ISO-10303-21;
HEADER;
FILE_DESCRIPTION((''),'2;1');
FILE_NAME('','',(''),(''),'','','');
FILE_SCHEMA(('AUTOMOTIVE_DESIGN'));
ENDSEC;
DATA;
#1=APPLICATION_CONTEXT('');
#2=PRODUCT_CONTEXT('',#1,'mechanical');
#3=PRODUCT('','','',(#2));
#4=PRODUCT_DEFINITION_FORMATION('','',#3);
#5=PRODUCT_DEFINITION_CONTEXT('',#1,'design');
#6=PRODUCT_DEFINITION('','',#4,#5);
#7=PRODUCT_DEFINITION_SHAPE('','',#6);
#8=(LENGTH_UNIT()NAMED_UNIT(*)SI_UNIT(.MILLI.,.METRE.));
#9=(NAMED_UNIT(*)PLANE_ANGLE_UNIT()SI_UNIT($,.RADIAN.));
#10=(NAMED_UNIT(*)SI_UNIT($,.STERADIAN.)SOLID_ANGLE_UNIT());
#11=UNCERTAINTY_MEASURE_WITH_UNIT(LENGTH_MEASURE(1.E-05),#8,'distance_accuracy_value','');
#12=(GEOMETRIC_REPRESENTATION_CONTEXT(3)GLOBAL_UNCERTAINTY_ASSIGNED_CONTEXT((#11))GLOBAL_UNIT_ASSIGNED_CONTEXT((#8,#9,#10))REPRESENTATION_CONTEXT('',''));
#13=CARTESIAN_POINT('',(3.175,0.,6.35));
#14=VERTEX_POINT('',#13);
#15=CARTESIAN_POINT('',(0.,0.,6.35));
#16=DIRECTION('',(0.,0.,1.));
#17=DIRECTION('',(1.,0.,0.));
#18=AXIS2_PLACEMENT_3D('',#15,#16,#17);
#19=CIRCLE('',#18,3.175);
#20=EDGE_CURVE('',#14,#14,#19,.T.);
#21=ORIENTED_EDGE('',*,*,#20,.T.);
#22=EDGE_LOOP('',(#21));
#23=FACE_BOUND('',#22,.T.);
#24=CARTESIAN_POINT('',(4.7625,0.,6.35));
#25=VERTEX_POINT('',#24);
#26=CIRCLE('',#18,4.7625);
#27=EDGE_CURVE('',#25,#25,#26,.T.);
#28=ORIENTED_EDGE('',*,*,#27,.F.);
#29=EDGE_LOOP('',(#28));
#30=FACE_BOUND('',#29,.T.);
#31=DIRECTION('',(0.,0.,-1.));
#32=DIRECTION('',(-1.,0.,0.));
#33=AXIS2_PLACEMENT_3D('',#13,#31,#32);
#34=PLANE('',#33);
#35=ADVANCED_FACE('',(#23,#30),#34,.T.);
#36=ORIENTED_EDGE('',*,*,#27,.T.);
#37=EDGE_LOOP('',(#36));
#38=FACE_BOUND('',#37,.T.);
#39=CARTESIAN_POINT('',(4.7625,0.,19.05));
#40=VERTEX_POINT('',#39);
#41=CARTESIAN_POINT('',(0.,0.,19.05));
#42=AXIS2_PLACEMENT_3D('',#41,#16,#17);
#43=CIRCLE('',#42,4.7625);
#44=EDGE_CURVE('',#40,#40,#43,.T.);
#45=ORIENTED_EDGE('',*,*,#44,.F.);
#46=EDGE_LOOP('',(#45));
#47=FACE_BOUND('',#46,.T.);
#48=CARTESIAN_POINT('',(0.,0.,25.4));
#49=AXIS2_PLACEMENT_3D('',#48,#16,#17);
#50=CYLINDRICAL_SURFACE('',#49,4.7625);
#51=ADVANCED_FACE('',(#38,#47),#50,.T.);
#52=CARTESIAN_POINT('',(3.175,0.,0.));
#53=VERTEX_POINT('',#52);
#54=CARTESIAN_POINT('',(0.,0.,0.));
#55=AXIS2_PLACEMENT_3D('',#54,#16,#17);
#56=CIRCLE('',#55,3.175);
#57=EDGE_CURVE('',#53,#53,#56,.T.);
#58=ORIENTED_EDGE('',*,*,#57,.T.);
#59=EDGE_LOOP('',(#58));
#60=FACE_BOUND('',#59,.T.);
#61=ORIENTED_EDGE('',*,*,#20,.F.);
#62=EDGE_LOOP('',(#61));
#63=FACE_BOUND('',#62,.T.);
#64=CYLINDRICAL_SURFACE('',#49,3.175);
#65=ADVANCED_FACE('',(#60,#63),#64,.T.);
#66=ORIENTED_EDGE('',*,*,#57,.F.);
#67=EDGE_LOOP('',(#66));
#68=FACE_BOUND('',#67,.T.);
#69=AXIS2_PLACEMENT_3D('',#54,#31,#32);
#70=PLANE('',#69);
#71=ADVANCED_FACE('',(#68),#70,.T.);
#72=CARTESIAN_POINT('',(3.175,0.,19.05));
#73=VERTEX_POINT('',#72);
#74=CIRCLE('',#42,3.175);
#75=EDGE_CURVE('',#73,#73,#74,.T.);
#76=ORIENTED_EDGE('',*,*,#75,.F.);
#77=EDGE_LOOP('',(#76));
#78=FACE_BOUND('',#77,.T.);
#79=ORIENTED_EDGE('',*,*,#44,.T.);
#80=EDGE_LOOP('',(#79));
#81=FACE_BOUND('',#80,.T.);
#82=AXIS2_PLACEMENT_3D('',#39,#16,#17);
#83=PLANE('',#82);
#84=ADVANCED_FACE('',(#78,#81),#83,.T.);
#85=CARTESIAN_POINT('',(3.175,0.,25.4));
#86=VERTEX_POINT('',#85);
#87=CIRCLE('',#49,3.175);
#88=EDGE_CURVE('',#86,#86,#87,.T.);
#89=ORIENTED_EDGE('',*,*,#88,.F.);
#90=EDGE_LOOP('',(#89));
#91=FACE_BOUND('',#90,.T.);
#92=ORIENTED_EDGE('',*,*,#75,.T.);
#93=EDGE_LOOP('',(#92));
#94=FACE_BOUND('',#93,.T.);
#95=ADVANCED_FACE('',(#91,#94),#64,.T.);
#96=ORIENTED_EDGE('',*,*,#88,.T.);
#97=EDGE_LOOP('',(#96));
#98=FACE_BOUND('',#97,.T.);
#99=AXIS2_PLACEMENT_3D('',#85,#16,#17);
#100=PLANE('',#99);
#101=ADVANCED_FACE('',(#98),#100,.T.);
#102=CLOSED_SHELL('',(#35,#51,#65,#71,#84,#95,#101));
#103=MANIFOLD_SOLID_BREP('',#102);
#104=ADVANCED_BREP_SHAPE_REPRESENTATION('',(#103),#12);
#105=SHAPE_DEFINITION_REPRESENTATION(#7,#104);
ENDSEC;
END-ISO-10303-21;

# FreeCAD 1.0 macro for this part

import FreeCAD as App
import Part
import Sketcher

V = App.Vector
Q = App.Units.Quantity

doc = App.newDocument("Part")
body = doc.addObject("PartDesign::Body", "Body")

# Sketch on XZ plane
sketch1 = body.newObject("Sketcher::SketchObject", "Sketch")
sketch1.AttachmentSupport = (doc.getObject("XZ_Plane"), [""])
sketch1.MapMode = "FlatFace"
sketch1.addGeometry([
    Part.LineSegment(V(3.2, 0, 0), V(0, 0, 0)),  # 0
    Part.LineSegment(V(0, 0, 0), V(0, 25.4, 0)),  # 1
    Part.LineSegment(V(0, 25.4, 0), V(3.2, 25.4, 0)),  # 2
    Part.LineSegment(V(3.2, 25.4, 0), V(3.2, 19.1, 0)),  # 3
    Part.LineSegment(V(3.2, 19.1, 0), V(4.8, 19.1, 0)),  # 4
    Part.LineSegment(V(4.8, 19.1, 0), V(4.8, 6.3, 0)),  # 5
    Part.LineSegment(V(4.8, 6.3, 0), V(3.2, 6.3, 0)),  # 6
    Part.LineSegment(V(3.2, 6.3, 0), V(3.2, 0, 0)),  # 7
], False)
sketch1.addConstraint([
    Sketcher.Constraint("Coincident", 0, 2, 1, 1),
    Sketcher.Constraint("Coincident", 1, 2, 2, 1),
    Sketcher.Constraint("Coincident", 2, 2, 3, 1),
    Sketcher.Constraint("Coincident", 3, 2, 4, 1),
    Sketcher.Constraint("Coincident", 4, 2, 5, 1),
    Sketcher.Constraint("Coincident", 5, 2, 6, 1),
    Sketcher.Constraint("Coincident", 6, 2, 7, 1),
    Sketcher.Constraint("Coincident", 7, 2, 0, 1),
    Sketcher.Constraint("Horizontal", 0),
    Sketcher.Constraint("Vertical", 1),
    Sketcher.Constraint("Horizontal", 2),
    Sketcher.Constraint("Vertical", 3),
    Sketcher.Constraint("Horizontal", 4),
    Sketcher.Constraint("Vertical", 5),
    Sketcher.Constraint("Horizontal", 6),
    Sketcher.Constraint("Vertical", 7),
    Sketcher.Constraint("Coincident", 0, 2, -1, 1),
    Sketcher.Constraint("Vertical", 3, 2, 6, 2),
    Sketcher.Constraint("Equal", 3, 7),
    Sketcher.Constraint("DistanceY", 1, 1, 1, 2, Q("1 in")),
    Sketcher.Constraint("DistanceY", 5, 2, 5, 1, Q("0.5 in")),
    Sketcher.Constraint("DistanceX", 0, 2, 0, 1, Q("0.125 in")),
    Sketcher.Constraint("DistanceX", 4, 1, 4, 2, Q("0.0625 in")),
])
revolution = body.newObject("PartDesign::Revolution", "Revolution")
revolution.Profile = sketch1
revolution.ReferenceAxis = (sketch1, ["V_Axis"])
revolution.Angle = 360

doc.recompute()
